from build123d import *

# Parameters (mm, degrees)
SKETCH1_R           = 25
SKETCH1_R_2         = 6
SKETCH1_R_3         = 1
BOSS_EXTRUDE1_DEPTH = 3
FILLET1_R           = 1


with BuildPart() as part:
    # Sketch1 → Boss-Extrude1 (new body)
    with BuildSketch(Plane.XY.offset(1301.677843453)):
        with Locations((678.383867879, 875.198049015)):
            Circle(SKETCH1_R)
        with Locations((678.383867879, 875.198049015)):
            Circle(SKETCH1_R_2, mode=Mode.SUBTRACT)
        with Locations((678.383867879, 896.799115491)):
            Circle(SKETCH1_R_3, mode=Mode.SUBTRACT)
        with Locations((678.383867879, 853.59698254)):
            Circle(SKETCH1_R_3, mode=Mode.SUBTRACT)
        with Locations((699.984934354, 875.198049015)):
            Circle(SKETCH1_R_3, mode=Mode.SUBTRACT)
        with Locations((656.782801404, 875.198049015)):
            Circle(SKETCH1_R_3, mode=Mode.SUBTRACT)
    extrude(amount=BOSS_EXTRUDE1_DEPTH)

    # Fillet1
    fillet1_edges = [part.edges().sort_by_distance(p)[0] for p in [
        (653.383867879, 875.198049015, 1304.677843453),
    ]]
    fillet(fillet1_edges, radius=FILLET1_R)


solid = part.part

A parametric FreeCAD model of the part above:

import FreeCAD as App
import Part
import Sketcher
from FreeCAD import Vector
Q = App.Units.Quantity


def edges_at(feature, points):
    """Names of the edges that pass closest to the given points."""
    edges = feature.Shape.Edges
    near = lambda p: min(range(len(edges)), key=lambda i: edges[i].distToShape(Part.Vertex(*p))[0])
    return sorted({f"Edge{near(p) + 1}" for p in points})

doc = App.newDocument("Part")
body = doc.addObject("PartDesign::Body", "Body")

# Sketch on XY plane
sketch1 = body.newObject("Sketcher::SketchObject", "Sketch")
sketch1.AttachmentSupport = (doc.getObject("XY_Plane"), [""])
sketch1.MapMode = "FlatFace"
sketch1.AttachmentOffset = App.Placement(Vector(0, 0, 1301.677843), App.Rotation())
sketch1.addGeometry([
    Part.Circle(Vector(678.383868, 875.198049, 0), Vector(0, 0, 1), 25),  # 0
    Part.Circle(Vector(656.782801, 875.198049, 0), Vector(0, 0, 1), 1),  # 1
    Part.Circle(Vector(678.383868, 853.596983, 0), Vector(0, 0, 1), 1),  # 2
    Part.Circle(Vector(678.383868, 875.198049, 0), Vector(0, 0, 1), 6),  # 3
    Part.Circle(Vector(699.984934, 875.198049, 0), Vector(0, 0, 1), 1),  # 4
    Part.Circle(Vector(678.383868, 896.799115, 0), Vector(0, 0, 1), 1),  # 5
], False)
sketch1.addConstraint([
    Sketcher.Constraint("Coincident", 3, 3, 0, 3),
    Sketcher.Constraint("Equal", 1, 2),
    Sketcher.Constraint("Equal", 2, 4),
    Sketcher.Constraint("Equal", 4, 5),
    Sketcher.Constraint("Horizontal", 0, 3, 1, 3),
    Sketcher.Constraint("Horizontal", 3, 3, 4, 3),
    Sketcher.Constraint("Vertical", 0, 3, 2, 3),
    Sketcher.Constraint("Vertical", 3, 3, 5, 3),
    Sketcher.Constraint("Diameter", 0, Q("50 mm")),
    Sketcher.Constraint("Diameter", 1, Q("2 mm")),
    Sketcher.Constraint("Diameter", 3, Q("12 mm")),
    Sketcher.Constraint("DistanceX", -1, 1, 1, 3, Q("656.782801 mm")),
    Sketcher.Constraint("DistanceY", -1, 1, 0, 3, Q("875.198049 mm")),
    Sketcher.Constraint("DistanceX", -1, 1, 0, 3, Q("678.383868 mm")),
    Sketcher.Constraint("DistanceY", -1, 1, 2, 3, Q("853.596983 mm")),
    Sketcher.Constraint("DistanceX", -1, 1, 4, 3, Q("699.984934 mm")),
    Sketcher.Constraint("DistanceY", -1, 1, 5, 3, Q("896.799115 mm")),
])
pad1 = body.newObject("PartDesign::Pad", "Pad")
pad1.Profile = sketch1
pad1.Length = 3
doc.recompute()

fillet = body.newObject("PartDesign::Fillet", "Fillet")
fillet.Base = (pad1, edges_at(pad1, [(653.384, 875.198, 1304.678)]))
fillet.Radius = 1

doc.recompute()
